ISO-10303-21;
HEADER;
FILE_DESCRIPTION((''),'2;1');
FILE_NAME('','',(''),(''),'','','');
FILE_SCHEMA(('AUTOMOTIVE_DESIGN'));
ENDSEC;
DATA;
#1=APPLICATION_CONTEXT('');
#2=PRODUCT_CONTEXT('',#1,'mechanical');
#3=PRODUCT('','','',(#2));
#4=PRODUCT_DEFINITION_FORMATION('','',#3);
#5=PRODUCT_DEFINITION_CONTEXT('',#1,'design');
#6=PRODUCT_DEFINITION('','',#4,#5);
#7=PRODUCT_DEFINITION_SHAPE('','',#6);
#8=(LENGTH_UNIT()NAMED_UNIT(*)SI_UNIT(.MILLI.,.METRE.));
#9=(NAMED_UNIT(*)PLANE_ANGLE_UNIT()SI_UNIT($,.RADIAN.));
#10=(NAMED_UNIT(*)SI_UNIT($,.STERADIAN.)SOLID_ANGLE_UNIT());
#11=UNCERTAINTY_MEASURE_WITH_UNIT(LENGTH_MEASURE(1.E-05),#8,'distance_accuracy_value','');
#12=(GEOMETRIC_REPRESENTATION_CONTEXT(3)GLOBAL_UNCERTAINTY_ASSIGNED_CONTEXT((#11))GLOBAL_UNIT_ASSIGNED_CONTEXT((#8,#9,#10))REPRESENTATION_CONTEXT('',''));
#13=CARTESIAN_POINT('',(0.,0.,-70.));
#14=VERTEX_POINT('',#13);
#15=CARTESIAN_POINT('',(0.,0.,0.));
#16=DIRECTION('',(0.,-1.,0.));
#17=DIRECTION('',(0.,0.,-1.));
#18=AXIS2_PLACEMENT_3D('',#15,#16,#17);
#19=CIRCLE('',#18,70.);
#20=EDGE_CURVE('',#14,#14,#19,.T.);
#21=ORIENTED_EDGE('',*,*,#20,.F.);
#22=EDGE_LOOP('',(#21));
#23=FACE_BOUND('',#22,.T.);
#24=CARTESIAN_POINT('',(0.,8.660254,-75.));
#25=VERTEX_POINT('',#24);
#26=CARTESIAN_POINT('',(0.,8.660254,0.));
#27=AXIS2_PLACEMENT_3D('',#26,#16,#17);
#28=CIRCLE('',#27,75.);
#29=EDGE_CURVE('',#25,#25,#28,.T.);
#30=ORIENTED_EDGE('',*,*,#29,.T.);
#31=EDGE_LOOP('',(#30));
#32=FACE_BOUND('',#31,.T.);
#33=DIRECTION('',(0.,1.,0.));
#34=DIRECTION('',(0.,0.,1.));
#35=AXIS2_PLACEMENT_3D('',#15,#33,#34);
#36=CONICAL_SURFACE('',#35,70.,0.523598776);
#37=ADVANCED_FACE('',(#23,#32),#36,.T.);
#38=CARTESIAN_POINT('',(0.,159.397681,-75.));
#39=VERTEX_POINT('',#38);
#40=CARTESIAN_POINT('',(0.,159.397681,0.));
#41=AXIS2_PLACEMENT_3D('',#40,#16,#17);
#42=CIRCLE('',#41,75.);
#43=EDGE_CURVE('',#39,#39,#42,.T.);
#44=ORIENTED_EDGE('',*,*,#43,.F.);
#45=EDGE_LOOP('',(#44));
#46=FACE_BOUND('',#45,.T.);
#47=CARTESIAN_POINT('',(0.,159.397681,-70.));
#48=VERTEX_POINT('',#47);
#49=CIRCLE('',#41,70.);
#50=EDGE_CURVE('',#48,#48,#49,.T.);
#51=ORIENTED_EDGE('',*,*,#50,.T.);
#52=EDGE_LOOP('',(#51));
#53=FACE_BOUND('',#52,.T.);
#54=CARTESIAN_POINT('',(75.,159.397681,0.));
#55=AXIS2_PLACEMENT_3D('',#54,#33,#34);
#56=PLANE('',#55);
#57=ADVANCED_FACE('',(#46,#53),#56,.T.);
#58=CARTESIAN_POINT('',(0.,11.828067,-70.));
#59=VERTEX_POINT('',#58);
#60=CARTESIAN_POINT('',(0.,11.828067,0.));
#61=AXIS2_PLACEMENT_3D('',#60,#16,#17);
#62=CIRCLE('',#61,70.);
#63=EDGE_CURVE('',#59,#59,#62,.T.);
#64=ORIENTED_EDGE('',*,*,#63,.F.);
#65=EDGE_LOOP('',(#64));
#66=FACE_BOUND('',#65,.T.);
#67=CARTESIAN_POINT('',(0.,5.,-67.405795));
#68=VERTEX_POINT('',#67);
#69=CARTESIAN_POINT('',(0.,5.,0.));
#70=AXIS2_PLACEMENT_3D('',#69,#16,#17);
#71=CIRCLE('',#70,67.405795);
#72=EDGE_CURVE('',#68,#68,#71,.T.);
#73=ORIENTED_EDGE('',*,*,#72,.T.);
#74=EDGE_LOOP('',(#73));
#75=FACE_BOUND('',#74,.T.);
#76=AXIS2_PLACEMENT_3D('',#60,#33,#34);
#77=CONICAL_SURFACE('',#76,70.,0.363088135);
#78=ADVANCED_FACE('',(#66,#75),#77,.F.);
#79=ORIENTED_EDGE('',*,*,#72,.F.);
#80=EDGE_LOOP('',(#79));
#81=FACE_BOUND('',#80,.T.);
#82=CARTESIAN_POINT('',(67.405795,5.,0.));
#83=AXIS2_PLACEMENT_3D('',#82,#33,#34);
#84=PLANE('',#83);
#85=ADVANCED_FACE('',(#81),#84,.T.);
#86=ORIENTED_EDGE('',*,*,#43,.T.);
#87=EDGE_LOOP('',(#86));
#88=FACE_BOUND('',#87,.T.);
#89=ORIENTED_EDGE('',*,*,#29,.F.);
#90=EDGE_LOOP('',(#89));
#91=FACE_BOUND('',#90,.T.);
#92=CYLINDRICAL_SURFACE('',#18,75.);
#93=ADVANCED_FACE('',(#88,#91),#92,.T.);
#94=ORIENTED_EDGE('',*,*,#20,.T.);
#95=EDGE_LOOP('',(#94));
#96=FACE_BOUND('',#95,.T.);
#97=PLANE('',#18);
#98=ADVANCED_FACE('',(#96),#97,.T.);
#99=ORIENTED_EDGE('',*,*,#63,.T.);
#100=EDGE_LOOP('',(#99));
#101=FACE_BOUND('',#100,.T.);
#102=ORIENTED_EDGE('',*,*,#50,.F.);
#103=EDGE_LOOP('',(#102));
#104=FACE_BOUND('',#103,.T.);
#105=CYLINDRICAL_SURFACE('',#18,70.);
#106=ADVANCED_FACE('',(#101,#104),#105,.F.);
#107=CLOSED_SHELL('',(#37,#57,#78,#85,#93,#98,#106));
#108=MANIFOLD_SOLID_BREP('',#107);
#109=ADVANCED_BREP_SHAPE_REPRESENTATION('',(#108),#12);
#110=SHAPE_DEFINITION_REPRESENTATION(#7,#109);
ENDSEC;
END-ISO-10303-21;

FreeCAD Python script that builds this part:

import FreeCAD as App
import Part
import Sketcher
from FreeCAD import Vector
Q = App.Units.Quantity


def add_polygon(sketch, points):
    """Adds a closed chain of lines whose ends are joined by coincident constraints."""
    first, n = sketch.GeometryCount, len(points)
    for a, b in zip(points, points[1:] + points[:1]):
        sketch.addGeometry(Part.LineSegment(App.Vector(*a, 0), App.Vector(*b, 0)), False)
    for i in range(n):
        sketch.addConstraint(Sketcher.Constraint("Coincident", first + i, 2, first + (i + 1) % n, 1))

doc = App.newDocument("Part")
params = doc.addObject("Spreadsheet::Sheet", "Params")
for row, (alias, value) in enumerate([
    ("sketch1_width", "70 mm"),
    ("sketch1_width2", "5 mm"),
    ("revolution_angle", "360 deg"),
], start=1):
    params.set(f"A{row}", alias)
    params.set(f"B{row}", "=" + value)
    params.setAlias(f"B{row}", alias)

body = doc.addObject("PartDesign::Body", "Body")

# Sketch on XY plane
sketch1 = doc.addObject("Sketcher::SketchObject", "Sketch")
body.addObject(sketch1)
sketch1.AttachmentSupport = (doc.XY_Plane, [""])
sketch1.MapMode = "FlatFace"
add_polygon(sketch1, [(0, 0), (70, 0), (75, 8.660254), (75, 159.397681), (70, 159.397681), (70, 11.828067), (67.405795, 5), (0, 5)])  # lines 0-7
sketch1.addConstraint(Sketcher.Constraint("Horizontal", 0))
sketch1.addConstraint(Sketcher.Constraint("Vertical", 2))
sketch1.addConstraint(Sketcher.Constraint("Horizontal", 3))
sketch1.addConstraint(Sketcher.Constraint("Vertical", 4))
sketch1.addConstraint(Sketcher.Constraint("Horizontal", 6))
sketch1.addConstraint(Sketcher.Constraint("Vertical", 7))
sketch1.addConstraint(Sketcher.Constraint("Coincident", 7, 2, -1, 1))
sketch1.addConstraint(Sketcher.Constraint("Vertical", 0, 2, 3, 2))
sketch1.addConstraint(Sketcher.Constraint("Equal", 3, 7))
sketch1.addConstraint(Sketcher.Constraint("DistanceX", 0, 1, 0, 2, Q("70 mm")))
sketch1.addConstraint(Sketcher.Constraint("DistanceX", 3, 2, 3, 1, Q("5 mm")))
sketch1.addConstraint(Sketcher.Constraint("Angle", 1, Q("60 deg")))
sketch1.addConstraint(Sketcher.Constraint("DistanceX", 6, 2, 6, 1, Q("67.405795 mm")))
sketch1.addConstraint(Sketcher.Constraint("DistanceY", 2, 1, 2, 2, Q("150.737427 mm")))
sketch1.addConstraint(Sketcher.Constraint("DistanceY", 4, 2, 4, 1, Q("147.569614 mm")))
sketch1.setExpression("Constraints[17]", "Params.sketch1_width")
sketch1.setExpression("Constraints[18]", "Params.sketch1_width2")
revolution = doc.addObject("PartDesign::Revolution", "Revolution")
body.addObject(revolution)
revolution.Profile = sketch1
revolution.ReferenceAxis = (sketch1, ["V_Axis"])
revolution.setExpression("Angle", "Params.revolution_angle")

doc.recompute()
